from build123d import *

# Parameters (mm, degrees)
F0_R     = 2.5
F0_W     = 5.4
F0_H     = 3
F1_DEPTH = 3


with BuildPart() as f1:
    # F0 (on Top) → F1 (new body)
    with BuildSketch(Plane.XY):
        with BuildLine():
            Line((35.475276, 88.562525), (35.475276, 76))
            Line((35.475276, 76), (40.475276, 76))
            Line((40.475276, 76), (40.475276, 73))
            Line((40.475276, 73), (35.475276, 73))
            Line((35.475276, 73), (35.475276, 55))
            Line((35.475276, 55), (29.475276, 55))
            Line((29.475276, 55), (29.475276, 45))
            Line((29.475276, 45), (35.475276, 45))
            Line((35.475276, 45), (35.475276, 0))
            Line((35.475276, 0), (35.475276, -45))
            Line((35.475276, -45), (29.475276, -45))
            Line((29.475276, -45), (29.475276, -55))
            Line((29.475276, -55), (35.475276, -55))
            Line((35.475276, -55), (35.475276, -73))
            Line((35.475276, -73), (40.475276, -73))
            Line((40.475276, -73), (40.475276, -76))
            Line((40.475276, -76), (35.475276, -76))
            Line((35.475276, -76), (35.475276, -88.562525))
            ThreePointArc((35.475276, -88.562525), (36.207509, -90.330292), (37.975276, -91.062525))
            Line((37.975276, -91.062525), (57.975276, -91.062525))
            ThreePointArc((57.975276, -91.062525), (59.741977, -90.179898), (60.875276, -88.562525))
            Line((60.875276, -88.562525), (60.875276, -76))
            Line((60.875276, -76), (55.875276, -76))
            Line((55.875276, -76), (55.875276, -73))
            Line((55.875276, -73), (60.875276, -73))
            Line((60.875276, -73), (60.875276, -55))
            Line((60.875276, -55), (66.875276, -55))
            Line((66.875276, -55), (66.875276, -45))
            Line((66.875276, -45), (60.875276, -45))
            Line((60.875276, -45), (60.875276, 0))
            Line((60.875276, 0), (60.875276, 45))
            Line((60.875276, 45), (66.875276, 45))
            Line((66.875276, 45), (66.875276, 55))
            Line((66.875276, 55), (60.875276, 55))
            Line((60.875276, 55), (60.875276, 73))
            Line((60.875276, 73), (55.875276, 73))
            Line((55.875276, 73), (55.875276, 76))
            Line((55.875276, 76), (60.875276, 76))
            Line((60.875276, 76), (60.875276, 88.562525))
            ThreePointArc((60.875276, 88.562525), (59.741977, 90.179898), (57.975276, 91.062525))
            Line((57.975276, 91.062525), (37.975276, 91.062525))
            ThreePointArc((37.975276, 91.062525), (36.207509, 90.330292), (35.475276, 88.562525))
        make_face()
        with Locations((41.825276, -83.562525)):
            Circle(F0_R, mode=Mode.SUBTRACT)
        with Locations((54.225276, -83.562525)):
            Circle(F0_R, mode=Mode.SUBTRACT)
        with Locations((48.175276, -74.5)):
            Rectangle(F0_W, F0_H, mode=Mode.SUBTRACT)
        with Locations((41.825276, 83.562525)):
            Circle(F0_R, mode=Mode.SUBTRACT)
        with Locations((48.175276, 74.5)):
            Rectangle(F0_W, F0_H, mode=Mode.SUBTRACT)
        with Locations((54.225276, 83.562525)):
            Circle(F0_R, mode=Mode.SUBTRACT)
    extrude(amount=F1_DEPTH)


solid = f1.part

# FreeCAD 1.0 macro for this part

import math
import FreeCAD as App
import Part
import Sketcher

V = App.Vector
Q = App.Units.Quantity

doc = App.newDocument("Part")
params = doc.addObject("Spreadsheet::Sheet", "Params")
for row, (alias, value) in enumerate([
    ("sketch1_diameter", "5 mm"),
    ("sketch1_width", "5 mm"),
    ("sketch1_width2", "6 mm"),
    ("sketch1_width3", "20 mm"),
    ("sketch1_height", "3 mm"),
    ("pad1_length", "3 mm"),
], start=1):
    params.set(f"A{row}", alias)
    params.set(f"B{row}", "=" + value)
    params.setAlias(f"B{row}", alias)

body = doc.addObject("PartDesign::Body", "Body")

sketch1 = body.newObject("Sketcher::SketchObject", "Sketch")
sketch1.AttachmentSupport = (doc.getObject("XY_Plane"), [""])
sketch1.MapMode = "FlatFace"
sketch1.addGeometry(Part.LineSegment(V(35.5, 88.6, 0), V(35.5, 76, 0)), False)
sketch1.addGeometry(Part.LineSegment(V(35.5, 76, 0), V(40.5, 76, 0)), False)
sketch1.addGeometry(Part.LineSegment(V(40.5, 76, 0), V(40.5, 73, 0)), False)
sketch1.addGeometry(Part.LineSegment(V(40.5, 73, 0), V(35.5, 73, 0)), False)
sketch1.addGeometry(Part.LineSegment(V(35.5, 73, 0), V(35.5, 55, 0)), False)
sketch1.addGeometry(Part.LineSegment(V(35.5, 55, 0), V(29.5, 55, 0)), False)
sketch1.addGeometry(Part.LineSegment(V(29.5, 55, 0), V(29.5, 45, 0)), False)
sketch1.addGeometry(Part.LineSegment(V(29.5, 45, 0), V(35.5, 45, 0)), False)
sketch1.addGeometry(Part.LineSegment(V(35.5, 45, 0), V(35.5, -45, 0)), False)
sketch1.addGeometry(Part.LineSegment(V(35.5, -45, 0), V(29.5, -45, 0)), False)
sketch1.addGeometry(Part.LineSegment(V(29.5, -45, 0), V(29.5, -55, 0)), False)
sketch1.addGeometry(Part.LineSegment(V(29.5, -55, 0), V(35.5, -55, 0)), False)
sketch1.addGeometry(Part.LineSegment(V(35.5, -55, 0), V(35.5, -73, 0)), False)
sketch1.addGeometry(Part.LineSegment(V(35.5, -73, 0), V(40.5, -73, 0)), False)
sketch1.addGeometry(Part.LineSegment(V(40.5, -73, 0), V(40.5, -76, 0)), False)
sketch1.addGeometry(Part.LineSegment(V(40.5, -76, 0), V(35.5, -76, 0)), False)
sketch1.addGeometry(Part.LineSegment(V(35.5, -76, 0), V(35.5, -88.6, 0)), False)
sketch1.addGeometry(Part.ArcOfCircle(Part.Circle(V(38, -88.6, 0), V(0, 0, 1), 2.5), math.radians(180), math.radians(270)), False)
sketch1.addGeometry(Part.LineSegment(V(38, -91.1, 0), V(58, -91.1, 0)), False)
sketch1.addGeometry(Part.ArcOfCircle(Part.Circle(V(57.1, -87.1, 0), V(0, 0, 1), 4), math.radians(-78), math.radians(-21)), False)
sketch1.addGeometry(Part.LineSegment(V(60.9, -88.6, 0), V(60.9, -76, 0)), False)
sketch1.addGeometry(Part.LineSegment(V(60.9, -76, 0), V(55.9, -76, 0)), False)
sketch1.addGeometry(Part.LineSegment(V(55.9, -76, 0), V(55.9, -73, 0)), False)
sketch1.addGeometry(Part.LineSegment(V(55.9, -73, 0), V(60.9, -73, 0)), False)
sketch1.addGeometry(Part.LineSegment(V(60.9, -73, 0), V(60.9, -55, 0)), False)
sketch1.addGeometry(Part.LineSegment(V(60.9, -55, 0), V(66.9, -55, 0)), False)
sketch1.addGeometry(Part.LineSegment(V(66.9, -55, 0), V(66.9, -45, 0)), False)
sketch1.addGeometry(Part.LineSegment(V(66.9, -45, 0), V(60.9, -45, 0)), False)
sketch1.addGeometry(Part.LineSegment(V(60.9, -45, 0), V(60.9, 45, 0)), False)
sketch1.addGeometry(Part.LineSegment(V(60.9, 45, 0), V(66.9, 45, 0)), False)
sketch1.addGeometry(Part.LineSegment(V(66.9, 45, 0), V(66.9, 55, 0)), False)
sketch1.addGeometry(Part.LineSegment(V(66.9, 55, 0), V(60.9, 55, 0)), False)
sketch1.addGeometry(Part.LineSegment(V(60.9, 55, 0), V(60.9, 73, 0)), False)
sketch1.addGeometry(Part.LineSegment(V(60.9, 73, 0), V(55.9, 73, 0)), False)
sketch1.addGeometry(Part.LineSegment(V(55.9, 73, 0), V(55.9, 76, 0)), False)
sketch1.addGeometry(Part.LineSegment(V(55.9, 76, 0), V(60.9, 76, 0)), False)
sketch1.addGeometry(Part.LineSegment(V(60.9, 76, 0), V(60.9, 88.6, 0)), False)
sketch1.addGeometry(Part.ArcOfCircle(Part.Circle(V(57.1, 87.1, 0), V(0, 0, 1), 4), math.radians(21), math.radians(78)), False)
sketch1.addGeometry(Part.LineSegment(V(58, 91.1, 0), V(38, 91.1, 0)), False)
sketch1.addGeometry(Part.ArcOfCircle(Part.Circle(V(38, 88.6, 0), V(0, 0, 1), 2.5), math.radians(90), math.radians(180)), False)
sketch1.addGeometry(Part.Circle(V(41.8, -83.6, 0), V(0, 0, 1), 2.5), False)
sketch1.addGeometry(Part.LineSegment(V(50.9, -76, 0), V(45.5, -76, 0)), False)
sketch1.addGeometry(Part.LineSegment(V(45.5, -76, 0), V(45.5, -73, 0)), False)
sketch1.addGeometry(Part.LineSegment(V(45.5, -73, 0), V(50.9, -73, 0)), False)
sketch1.addGeometry(Part.LineSegment(V(50.9, -73, 0), V(50.9, -76, 0)), False)
sketch1.addGeometry(Part.Circle(V(54.2, -83.6, 0), V(0, 0, 1), 2.5), False)
sketch1.addGeometry(Part.Circle(V(41.8, 83.6, 0), V(0, 0, 1), 2.5), False)
sketch1.addGeometry(Part.LineSegment(V(50.9, 73, 0), V(45.5, 73, 0)), False)
sketch1.addGeometry(Part.LineSegment(V(45.5, 73, 0), V(45.5, 76, 0)), False)
sketch1.addGeometry(Part.LineSegment(V(45.5, 76, 0), V(50.9, 76, 0)), False)
sketch1.addGeometry(Part.LineSegment(V(50.9, 76, 0), V(50.9, 73, 0)), False)
sketch1.addGeometry(Part.Circle(V(54.2, 83.6, 0), V(0, 0, 1), 2.5), False)
sketch1.addConstraint(Sketcher.Constraint("Coincident", 0, 2, 1, 1))
sketch1.addConstraint(Sketcher.Constraint("Coincident", 1, 2, 2, 1))
sketch1.addConstraint(Sketcher.Constraint("Coincident", 2, 2, 3, 1))
sketch1.addConstraint(Sketcher.Constraint("Coincident", 3, 2, 4, 1))
sketch1.addConstraint(Sketcher.Constraint("Coincident", 4, 2, 5, 1))
sketch1.addConstraint(Sketcher.Constraint("Coincident", 5, 2, 6, 1))
sketch1.addConstraint(Sketcher.Constraint("Coincident", 6, 2, 7, 1))
sketch1.addConstraint(Sketcher.Constraint("Coincident", 7, 2, 8, 1))
sketch1.addConstraint(Sketcher.Constraint("Coincident", 8, 2, 9, 1))
sketch1.addConstraint(Sketcher.Constraint("Coincident", 9, 2, 10, 1))
sketch1.addConstraint(Sketcher.Constraint("Coincident", 10, 2, 11, 1))
sketch1.addConstraint(Sketcher.Constraint("Coincident", 11, 2, 12, 1))
sketch1.addConstraint(Sketcher.Constraint("Coincident", 12, 2, 13, 1))
sketch1.addConstraint(Sketcher.Constraint("Coincident", 13, 2, 14, 1))
sketch1.addConstraint(Sketcher.Constraint("Coincident", 14, 2, 15, 1))
sketch1.addConstraint(Sketcher.Constraint("Coincident", 15, 2, 16, 1))
sketch1.addConstraint(Sketcher.Constraint("Tangent", 16, 2, 17, 1))
sketch1.addConstraint(Sketcher.Constraint("Tangent", 17, 2, 18, 1))
sketch1.addConstraint(Sketcher.Constraint("Coincident", 18, 2, 19, 1))
sketch1.addConstraint(Sketcher.Constraint("Coincident", 19, 2, 20, 1))
sketch1.addConstraint(Sketcher.Constraint("Coincident", 20, 2, 21, 1))
sketch1.addConstraint(Sketcher.Constraint("Coincident", 21, 2, 22, 1))
sketch1.addConstraint(Sketcher.Constraint("Coincident", 22, 2, 23, 1))
sketch1.addConstraint(Sketcher.Constraint("Coincident", 23, 2, 24, 1))
sketch1.addConstraint(Sketcher.Constraint("Coincident", 24, 2, 25, 1))
sketch1.addConstraint(Sketcher.Constraint("Coincident", 25, 2, 26, 1))
sketch1.addConstraint(Sketcher.Constraint("Coincident", 26, 2, 27, 1))
sketch1.addConstraint(Sketcher.Constraint("Coincident", 27, 2, 28, 1))
sketch1.addConstraint(Sketcher.Constraint("Coincident", 28, 2, 29, 1))
sketch1.addConstraint(Sketcher.Constraint("Coincident", 29, 2, 30, 1))
sketch1.addConstraint(Sketcher.Constraint("Coincident", 30, 2, 31, 1))
sketch1.addConstraint(Sketcher.Constraint("Coincident", 31, 2, 32, 1))
sketch1.addConstraint(Sketcher.Constraint("Coincident", 32, 2, 33, 1))
sketch1.addConstraint(Sketcher.Constraint("Coincident", 33, 2, 34, 1))
sketch1.addConstraint(Sketcher.Constraint("Coincident", 34, 2, 35, 1))
sketch1.addConstraint(Sketcher.Constraint("Coincident", 35, 2, 36, 1))
sketch1.addConstraint(Sketcher.Constraint("Coincident", 36, 2, 37, 1))
sketch1.addConstraint(Sketcher.Constraint("Coincident", 37, 2, 38, 1))
sketch1.addConstraint(Sketcher.Constraint("Tangent", 38, 2, 39, 1))
sketch1.addConstraint(Sketcher.Constraint("Tangent", 39, 2, 0, 1))
sketch1.addConstraint(Sketcher.Constraint("Coincident", 41, 2, 42, 1))
sketch1.addConstraint(Sketcher.Constraint("Coincident", 42, 2, 43, 1))
sketch1.addConstraint(Sketcher.Constraint("Coincident", 43, 2, 44, 1))
sketch1.addConstraint(Sketcher.Constraint("Coincident", 44, 2, 41, 1))
sketch1.addConstraint(Sketcher.Constraint("Coincident", 47, 2, 48, 1))
sketch1.addConstraint(Sketcher.Constraint("Coincident", 48, 2, 49, 1))
sketch1.addConstraint(Sketcher.Constraint("Coincident", 49, 2, 50, 1))
sketch1.addConstraint(Sketcher.Constraint("Coincident", 50, 2, 47, 1))
sketch1.addConstraint(Sketcher.Constraint("Vertical", 0))
sketch1.addConstraint(Sketcher.Constraint("Horizontal", 1))
sketch1.addConstraint(Sketcher.Constraint("Vertical", 2))
sketch1.addConstraint(Sketcher.Constraint("Horizontal", 3))
sketch1.addConstraint(Sketcher.Constraint("Vertical", 4))
sketch1.addConstraint(Sketcher.Constraint("Horizontal", 5))
sketch1.addConstraint(Sketcher.Constraint("Vertical", 6))
sketch1.addConstraint(Sketcher.Constraint("Horizontal", 7))
sketch1.addConstraint(Sketcher.Constraint("Vertical", 8))
sketch1.addConstraint(Sketcher.Constraint("Horizontal", 9))
sketch1.addConstraint(Sketcher.Constraint("Vertical", 10))
sketch1.addConstraint(Sketcher.Constraint("Horizontal", 11))
sketch1.addConstraint(Sketcher.Constraint("Vertical", 12))
sketch1.addConstraint(Sketcher.Constraint("Horizontal", 13))
sketch1.addConstraint(Sketcher.Constraint("Vertical", 14))
sketch1.addConstraint(Sketcher.Constraint("Horizontal", 15))
sketch1.addConstraint(Sketcher.Constraint("Vertical", 16))
sketch1.addConstraint(Sketcher.Constraint("Horizontal", 18))
sketch1.addConstraint(Sketcher.Constraint("Vertical", 20))
sketch1.addConstraint(Sketcher.Constraint("Horizontal", 21))
sketch1.addConstraint(Sketcher.Constraint("Vertical", 22))
sketch1.addConstraint(Sketcher.Constraint("Horizontal", 23))
sketch1.addConstraint(Sketcher.Constraint("Vertical", 24))
sketch1.addConstraint(Sketcher.Constraint("Horizontal", 25))
sketch1.addConstraint(Sketcher.Constraint("Vertical", 26))
sketch1.addConstraint(Sketcher.Constraint("Horizontal", 27))
sketch1.addConstraint(Sketcher.Constraint("Vertical", 28))
sketch1.addConstraint(Sketcher.Constraint("Horizontal", 29))
sketch1.addConstraint(Sketcher.Constraint("Vertical", 30))
sketch1.addConstraint(Sketcher.Constraint("Horizontal", 31))
sketch1.addConstraint(Sketcher.Constraint("Vertical", 32))
sketch1.addConstraint(Sketcher.Constraint("Horizontal", 33))
sketch1.addConstraint(Sketcher.Constraint("Vertical", 34))
sketch1.addConstraint(Sketcher.Constraint("Horizontal", 35))
sketch1.addConstraint(Sketcher.Constraint("Vertical", 36))
sketch1.addConstraint(Sketcher.Constraint("Horizontal", 38))
sketch1.addConstraint(Sketcher.Constraint("Horizontal", 41))
sketch1.addConstraint(Sketcher.Constraint("Vertical", 42))
sketch1.addConstraint(Sketcher.Constraint("Horizontal", 43))
sketch1.addConstraint(Sketcher.Constraint("Vertical", 44))
sketch1.addConstraint(Sketcher.Constraint("Horizontal", 47))
sketch1.addConstraint(Sketcher.Constraint("Vertical", 48))
sketch1.addConstraint(Sketcher.Constraint("Horizontal", 49))
sketch1.addConstraint(Sketcher.Constraint("Vertical", 50))
sketch1.addConstraint(Sketcher.Constraint("Equal", 19, 37))
sketch1.addConstraint(Sketcher.Constraint("Equal", 17, 39))
sketch1.addConstraint(Sketcher.Constraint("Equal", 39, 40))
sketch1.addConstraint(Sketcher.Constraint("Equal", 40, 45))
sketch1.addConstraint(Sketcher.Constraint("Equal", 45, 46))
sketch1.addConstraint(Sketcher.Constraint("Equal", 46, 51))
sketch1.addConstraint(Sketcher.Constraint("Symmetric", 19, 3, 37, 3, -1))
sketch1.addConstraint(Sketcher.Constraint("Symmetric", 17, 3, 39, 3, -1))
sketch1.addConstraint(Sketcher.Constraint("Symmetric", 40, 3, 46, 3, -1))
sketch1.addConstraint(Sketcher.Constraint("Symmetric", 45, 3, 51, 3, -1))
sketch1.addConstraint(Sketcher.Constraint("Symmetric", 6, 2, 9, 2, -1))
sketch1.addConstraint(Sketcher.Constraint("Symmetric", 4, 2, 11, 2, -1))
sketch1.addConstraint(Sketcher.Constraint("Symmetric", 2, 2, 13, 2, -1))
sketch1.addConstraint(Sketcher.Constraint("Symmetric", 26, 2, 29, 2, -1))
sketch1.addConstraint(Sketcher.Constraint("Symmetric", 24, 2, 31, 2, -1))
sketch1.addConstraint(Sketcher.Constraint("Symmetric", 22, 2, 33, 2, -1))
sketch1.addConstraint(Sketcher.Constraint("Symmetric", 20, 2, 35, 2, -1))
sketch1.addConstraint(Sketcher.Constraint("Symmetric", 42, 2, 47, 2, -1))
sketch1.addConstraint(Sketcher.Constraint("Symmetric", 44, 2, 49, 2, -1))
sketch1.addConstraint(Sketcher.Constraint("Horizontal", 40, 3, 45, 3))
sketch1.addConstraint(Sketcher.Constraint("Horizontal", 16, 2, 19, 2))
sketch1.addConstraint(Sketcher.Constraint("Horizontal", 15, 2, 20, 2))
sketch1.addConstraint(Sketcher.Constraint("Horizontal", 13, 2, 22, 2))
sketch1.addConstraint(Sketcher.Constraint("Horizontal", 11, 2, 24, 2))
sketch1.addConstraint(Sketcher.Constraint("Horizontal", 9, 2, 26, 2))
sketch1.addConstraint(Sketcher.Constraint("Horizontal", 1, 2, 34, 2))
sketch1.addConstraint(Sketcher.Constraint("Horizontal", 21, 2, 41, 2))
sketch1.addConstraint(Sketcher.Constraint("Horizontal", 23, 2, 42, 2))
sketch1.addConstraint(Sketcher.Constraint("Vertical", 0, 2, 3, 2))
sketch1.addConstraint(Sketcher.Constraint("Vertical", 4, 2, 7, 2))
sketch1.addConstraint(Sketcher.Constraint("Vertical", 20, 2, 23, 2))
sketch1.addConstraint(Sketcher.Constraint("Vertical", 24, 2, 27, 2))
sketch1.addConstraint(Sketcher.Constraint("Equal", 15, 21))
sketch1.addConstraint(Sketcher.Constraint("Equal", 11, 25))
sketch1.addConstraint(Sketcher.Constraint("Diameter", 40, Q("5 mm")))
sketch1.addConstraint(Sketcher.Constraint("DistanceX", 1, 1, 1, 2, Q("5 mm")))
sketch1.addConstraint(Sketcher.Constraint("DistanceX", 5, 2, 5, 1, Q("6 mm")))
sketch1.addConstraint(Sketcher.Constraint("DistanceX", 18, 1, 18, 2, Q("20 mm")))
sketch1.addConstraint(Sketcher.Constraint("DistanceY", 2, 2, 2, 1, Q("3 mm")))
sketch1.addConstraint(Sketcher.Constraint("DistanceY", 4, 2, 4, 1, Q("18 mm")))
sketch1.addConstraint(Sketcher.Constraint("DistanceY", 6, 2, 6, 1, Q("10 mm")))
sketch1.addConstraint(Sketcher.Constraint("DistanceY", 8, 2, 8, 1, Q("90 mm")))
sketch1.addConstraint(Sketcher.Constraint("DistanceX", 41, 2, 41, 1, Q("5.4 mm")))
sketch1.addConstraint(Sketcher.Constraint("DistanceY", 17, 3, 40, 3, Q("5 mm")))
sketch1.addConstraint(Sketcher.Constraint("DistanceX", 14, 2, 41, 2, Q("5 mm")))
sketch1.addConstraint(Sketcher.Constraint("DistanceX", 43, 2, 22, 2, Q("5 mm")))
sketch1.addConstraint(Sketcher.Constraint("DistanceX", 40, 3, 45, 3, Q("12.4 mm")))
sketch1.addConstraint(Sketcher.Constraint("Radius", 19, Q("4.020569 mm")))
sketch1.addConstraint(Sketcher.Constraint("DistanceX", 17, 3, 40, 3, Q("3.85 mm")))
sketch1.addConstraint(Sketcher.Constraint("DistanceY", 0, 2, 0, 1, Q("12.562525 mm")))
sketch1.addConstraint(Sketcher.Constraint("DistanceX", -1, 1, 19, 3, Q("57.116788 mm")))
sketch1.setExpression("Constraints[126]", "Params.sketch1_diameter")
sketch1.setExpression("Constraints[127]", "Params.sketch1_width")
sketch1.setExpression("Constraints[128]", "Params.sketch1_width2")
sketch1.setExpression("Constraints[129]", "Params.sketch1_width3")
sketch1.setExpression("Constraints[130]", "Params.sketch1_height")
pad1 = body.newObject("PartDesign::Pad", "Pad")
pad1.Profile = sketch1
pad1.setExpression("Length", "Params.pad1_length")

doc.recompute()
